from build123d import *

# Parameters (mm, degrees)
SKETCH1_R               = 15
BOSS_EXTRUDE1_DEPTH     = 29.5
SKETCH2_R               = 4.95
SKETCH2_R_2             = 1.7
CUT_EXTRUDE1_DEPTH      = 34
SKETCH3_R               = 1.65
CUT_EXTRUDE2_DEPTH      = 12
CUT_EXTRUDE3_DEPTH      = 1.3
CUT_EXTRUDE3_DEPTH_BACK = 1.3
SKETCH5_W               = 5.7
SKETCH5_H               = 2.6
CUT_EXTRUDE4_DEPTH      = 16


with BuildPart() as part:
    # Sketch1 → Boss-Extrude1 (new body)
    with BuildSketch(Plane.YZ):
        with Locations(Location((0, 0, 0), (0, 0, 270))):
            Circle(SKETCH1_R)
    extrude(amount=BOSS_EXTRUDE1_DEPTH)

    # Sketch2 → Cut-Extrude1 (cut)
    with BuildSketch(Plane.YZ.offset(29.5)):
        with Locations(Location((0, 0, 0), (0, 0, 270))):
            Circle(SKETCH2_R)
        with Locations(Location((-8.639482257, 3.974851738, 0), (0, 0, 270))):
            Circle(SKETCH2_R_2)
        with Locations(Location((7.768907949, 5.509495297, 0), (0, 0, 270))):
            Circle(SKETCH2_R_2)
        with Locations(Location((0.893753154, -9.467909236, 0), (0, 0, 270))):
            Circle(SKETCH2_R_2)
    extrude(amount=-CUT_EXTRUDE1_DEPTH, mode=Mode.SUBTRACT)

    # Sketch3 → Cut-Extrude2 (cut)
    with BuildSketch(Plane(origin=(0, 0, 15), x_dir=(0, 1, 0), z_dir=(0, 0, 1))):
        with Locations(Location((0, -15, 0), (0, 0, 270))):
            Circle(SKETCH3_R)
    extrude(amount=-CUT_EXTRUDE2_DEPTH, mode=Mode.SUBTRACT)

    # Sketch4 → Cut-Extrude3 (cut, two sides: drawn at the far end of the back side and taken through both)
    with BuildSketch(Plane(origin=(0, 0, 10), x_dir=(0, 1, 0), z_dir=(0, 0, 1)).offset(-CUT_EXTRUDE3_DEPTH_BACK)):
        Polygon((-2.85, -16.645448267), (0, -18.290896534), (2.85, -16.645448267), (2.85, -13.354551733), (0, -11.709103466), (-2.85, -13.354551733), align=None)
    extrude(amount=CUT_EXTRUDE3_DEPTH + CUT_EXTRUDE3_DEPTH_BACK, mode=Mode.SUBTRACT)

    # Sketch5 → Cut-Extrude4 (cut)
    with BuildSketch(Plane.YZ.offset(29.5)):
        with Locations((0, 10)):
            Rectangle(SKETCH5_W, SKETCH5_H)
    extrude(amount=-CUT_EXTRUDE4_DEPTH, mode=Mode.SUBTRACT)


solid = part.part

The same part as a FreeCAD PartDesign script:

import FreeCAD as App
import Part
import Sketcher
Q = App.Units.Quantity


def add_polygon(sketch, points):
    """Adds a closed chain of lines whose ends are joined by coincident constraints."""
    first, n = sketch.GeometryCount, len(points)
    for a, b in zip(points, points[1:] + points[:1]):
        sketch.addGeometry(Part.LineSegment(App.Vector(*a, 0), App.Vector(*b, 0)), False)
    for i in range(n):
        sketch.addConstraint(Sketcher.Constraint("Coincident", first + i, 2, first + (i + 1) % n, 1))

doc = App.newDocument("Part")
body = doc.addObject("PartDesign::Body", "Body")

# Sketch on YZ plane
sketch1 = doc.addObject("Sketcher::SketchObject", "Sketch")
body.addObject(sketch1)
sketch1.AttachmentSupport = (doc.YZ_Plane, [""])
sketch1.MapMode = "FlatFace"
sketch1.addGeometry(Part.Circle(App.Vector(0, 0, 0), App.Vector(0, 0, 1), 15), False)
sketch1.addConstraint([
    Sketcher.Constraint("Coincident", 0, 3, -1, 1),
    Sketcher.Constraint("Diameter", 0, Q("30 mm")),
])
pad1 = doc.addObject("PartDesign::Pad", "Pad")
body.addObject(pad1)
pad1.Profile = sketch1
pad1.Length = 29.5

# Sketch on YZ plane
sketch2 = doc.addObject("Sketcher::SketchObject", "Sketch001")
body.addObject(sketch2)
sketch2.AttachmentSupport = (doc.YZ_Plane, [""])
sketch2.MapMode = "FlatFace"
sketch2.AttachmentOffset = App.Placement(App.Vector(0, 0, 29.5), App.Rotation())
sketch2.addGeometry([
    Part.Circle(App.Vector(0, 0, 0), App.Vector(0, 0, 1), 4.95),
    Part.Circle(App.Vector(-8.639482, 3.974852, 0), App.Vector(0, 0, 1), 1.7),
    Part.Circle(App.Vector(7.768908, 5.509495, 0), App.Vector(0, 0, 1), 1.7),
    Part.Circle(App.Vector(0.893753, -9.467909, 0), App.Vector(0, 0, 1), 1.7),
], False)
sketch2.addConstraint([
    Sketcher.Constraint("Coincident", 0, 3, -1, 1),
    Sketcher.Constraint("Equal", 1, 2),
    Sketcher.Constraint("Equal", 2, 3),
    Sketcher.Constraint("Diameter", 0, Q("9.9 mm")),
    Sketcher.Constraint("Diameter", 1, Q("3.4 mm")),
    Sketcher.Constraint("DistanceY", -1, 1, 1, 3, Q("3.974852 mm")),
    Sketcher.Constraint("DistanceY", 3, 3, -1, 1, Q("9.467909 mm")),
    Sketcher.Constraint("DistanceX", 1, 3, 2, 3, Q("16.40839 mm")),
    Sketcher.Constraint("DistanceX", 1, 3, -1, 1, Q("8.639482 mm")),
    Sketcher.Constraint("DistanceY", -1, 1, 2, 3, Q("5.509495 mm")),
    Sketcher.Constraint("DistanceX", -1, 1, 3, 3, Q("0.893753 mm")),
])
pocket1 = doc.addObject("PartDesign::Pocket", "Pocket")
body.addObject(pocket1)
pocket1.Profile = sketch2
pocket1.Length = 34

# Sketch on XY plane
sketch3 = doc.addObject("Sketcher::SketchObject", "Sketch002")
body.addObject(sketch3)
sketch3.AttachmentSupport = (doc.XY_Plane, [""])
sketch3.MapMode = "FlatFace"
sketch3.AttachmentOffset = App.Placement(App.Vector(0, 0, 15), App.Rotation())
sketch3.addGeometry(Part.Circle(App.Vector(15, 0, 0), App.Vector(0, 0, 1), 1.65), False)
sketch3.addConstraint([
    Sketcher.Constraint("PointOnObject", 0, 3, -1),
    Sketcher.Constraint("Diameter", 0, Q("3.3 mm")),
    Sketcher.Constraint("DistanceX", -1, 1, 0, 3, Q("15 mm")),
])
pocket2 = doc.addObject("PartDesign::Pocket", "Pocket001")
body.addObject(pocket2)
pocket2.Profile = sketch3
pocket2.Length = 12

# Sketch on XY plane
sketch4 = doc.addObject("Sketcher::SketchObject", "Sketch003")
body.addObject(sketch4)
sketch4.AttachmentSupport = (doc.XY_Plane, [""])
sketch4.MapMode = "FlatFace"
sketch4.AttachmentOffset = App.Placement(App.Vector(0, 0, 10), App.Rotation())
add_polygon(sketch4, [(16.645448, -2.85), (18.290897, 0), (16.645448, 2.85), (13.354552, 2.85), (11.709103, 0), (13.354552, -2.85)])  # lines 0-5
sketch4.addConstraint([
    Sketcher.Constraint("Horizontal", 2),
    Sketcher.Constraint("Horizontal", 5),
    Sketcher.Constraint("Symmetric", 2, 2, 4, 2, -1),
    Sketcher.Constraint("PointOnObject", 0, 2, -1),
    Sketcher.Constraint("PointOnObject", 3, 2, -1),
    Sketcher.Constraint("Parallel", 0, 3),
    Sketcher.Constraint("Parallel", 1, 4),
    Sketcher.Constraint("Angle", 0, Q("60 deg")),
    Sketcher.Constraint("DistanceY", 4, 2, 2, 2, Q("5.7 mm")),
    Sketcher.Constraint("DistanceX", 2, 2, 2, 1, Q("3.290897 mm")),
    Sketcher.Constraint("DistanceX", -1, 1, 1, 2, Q("16.645448 mm")),
])
pocket3 = doc.addObject("PartDesign::Pocket", "Pocket002")
body.addObject(pocket3)
pocket3.Profile = sketch4
pocket3.Type = "TwoLengths"
pocket3.Length = 1.3
pocket3.Length2 = 1.3
pocket3.Reversed = True

# Sketch on YZ plane
sketch5 = doc.addObject("Sketcher::SketchObject", "Sketch004")
body.addObject(sketch5)
sketch5.AttachmentSupport = (doc.YZ_Plane, [""])
sketch5.MapMode = "FlatFace"
sketch5.AttachmentOffset = App.Placement(App.Vector(0, 0, 29.5), App.Rotation())
add_polygon(sketch5, [(-2.85, 11.3), (-2.85, 8.7), (2.85, 8.7), (2.85, 11.3)])  # lines 0-3
sketch5.addConstraint([
    Sketcher.Constraint("Vertical", 0),
    Sketcher.Constraint("Horizontal", 1),
    Sketcher.Constraint("Vertical", 2),
    Sketcher.Constraint("Horizontal", 3),
    Sketcher.Constraint("DistanceX", 1, 1, 1, 2, Q("5.7 mm")),
    Sketcher.Constraint("DistanceY", 0, 2, 0, 1, Q("2.6 mm")),
    Sketcher.Constraint("DistanceY", -1, 1, 0, 2, Q("8.7 mm")),
    Sketcher.Constraint("DistanceX", 0, 2, -1, 1, Q("2.85 mm")),
])
pocket4 = doc.addObject("PartDesign::Pocket", "Pocket003")
body.addObject(pocket4)
pocket4.Profile = sketch5
pocket4.Length = 16

doc.recompute()
